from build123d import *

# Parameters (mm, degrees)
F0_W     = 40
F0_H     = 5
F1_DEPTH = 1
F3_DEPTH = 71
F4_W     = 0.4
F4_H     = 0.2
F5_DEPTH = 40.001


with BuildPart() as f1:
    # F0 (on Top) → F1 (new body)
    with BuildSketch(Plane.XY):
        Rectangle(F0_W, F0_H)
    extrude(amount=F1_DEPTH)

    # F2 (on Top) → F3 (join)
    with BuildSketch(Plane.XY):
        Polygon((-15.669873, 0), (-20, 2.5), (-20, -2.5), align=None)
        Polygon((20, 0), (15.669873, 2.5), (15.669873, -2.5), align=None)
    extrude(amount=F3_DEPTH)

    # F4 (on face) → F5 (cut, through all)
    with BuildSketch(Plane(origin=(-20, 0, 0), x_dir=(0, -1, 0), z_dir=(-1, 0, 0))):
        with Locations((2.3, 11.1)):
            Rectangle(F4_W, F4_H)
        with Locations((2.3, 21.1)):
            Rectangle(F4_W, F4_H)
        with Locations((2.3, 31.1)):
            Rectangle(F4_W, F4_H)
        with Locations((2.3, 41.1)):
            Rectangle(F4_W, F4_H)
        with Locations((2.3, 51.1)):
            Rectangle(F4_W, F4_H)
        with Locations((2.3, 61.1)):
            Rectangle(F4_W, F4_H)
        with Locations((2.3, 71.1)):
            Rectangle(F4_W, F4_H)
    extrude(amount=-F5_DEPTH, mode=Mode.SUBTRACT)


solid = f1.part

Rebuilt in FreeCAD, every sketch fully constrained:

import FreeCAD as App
import Part
import Sketcher

V = App.Vector
Q = App.Units.Quantity

doc = App.newDocument("Part")
body = doc.addObject("PartDesign::Body", "Body")

# Sketch on XY plane
sketch1 = body.newObject("Sketcher::SketchObject", "Sketch")
sketch1.AttachmentSupport = (doc.getObject("XY_Plane"), [""])
sketch1.MapMode = "FlatFace"
sketch1.addGeometry([
    Part.LineSegment(V(-20, 2, 0), V(-20, -2, 0)),
    Part.LineSegment(V(-20, -2, 0), V(20, -2, 0)),
    Part.LineSegment(V(20, -2, 0), V(20, 2, 0)),
    Part.LineSegment(V(20, 2, 0), V(-20, 2, 0)),
], False)
sketch1.addConstraint([
    Sketcher.Constraint("Coincident", 0, 2, 1, 1),
    Sketcher.Constraint("Coincident", 1, 2, 2, 1),
    Sketcher.Constraint("Coincident", 2, 2, 3, 1),
    Sketcher.Constraint("Coincident", 3, 2, 0, 1),
    Sketcher.Constraint("Vertical", 0),
    Sketcher.Constraint("Horizontal", 1),
    Sketcher.Constraint("Vertical", 2),
    Sketcher.Constraint("Horizontal", 3),
    Sketcher.Constraint("Symmetric", 0, 2, 2, 2, -1, 1),
    Sketcher.Constraint("DistanceX", 1, 1, 1, 2, Q("40 mm")),
    Sketcher.Constraint("DistanceY", 0, 2, 0, 1, Q("5 mm")),
])
pad1 = body.newObject("PartDesign::Pad", "Pad")
pad1.Profile = sketch1
pad1.Length = 1

# Sketch on XY plane
sketch2 = body.newObject("Sketcher::SketchObject", "Sketch001")
sketch2.AttachmentSupport = (doc.getObject("XY_Plane"), [""])
sketch2.MapMode = "FlatFace"
sketch2.addGeometry([
    Part.LineSegment(V(-15.7, 0, 0), V(-20, 2.5, 0)),  # 0
    Part.LineSegment(V(-20, 2.5, 0), V(-20, -2.5, 0)),  # 1
    Part.LineSegment(V(-20, -2.5, 0), V(-15.7, 0, 0)),  # 2
    Part.LineSegment(V(20, 0, 0), V(15.7, 2.5, 0)),  # 3
    Part.LineSegment(V(15.7, 2.5, 0), V(15.7, -2.5, 0)),  # 4
    Part.LineSegment(V(15.7, -2.5, 0), V(20, 0, 0)),  # 5
], False)
sketch2.addConstraint([
    Sketcher.Constraint("Coincident", 0, 2, 1, 1),
    Sketcher.Constraint("Coincident", 1, 2, 2, 1),
    Sketcher.Constraint("Coincident", 2, 2, 0, 1),
    Sketcher.Constraint("Coincident", 3, 2, 4, 1),
    Sketcher.Constraint("Coincident", 4, 2, 5, 1),
    Sketcher.Constraint("Coincident", 5, 2, 3, 1),
    Sketcher.Constraint("Vertical", 1),
    Sketcher.Constraint("Vertical", 4),
    Sketcher.Constraint("PointOnObject", 2, 2, -1),
    Sketcher.Constraint("PointOnObject", 5, 2, -1),
    Sketcher.Constraint("Parallel", 0, 3),
    Sketcher.Constraint("Parallel", 2, 5),
    Sketcher.Constraint("Horizontal", 0, 2, 3, 2),
    Sketcher.Constraint("Equal", 0, 2),
    Sketcher.Constraint("DistanceY", 1, 2, 1, 1, Q("5 mm")),
    Sketcher.Constraint("Angle", 0, Q("150 deg")),
    Sketcher.Constraint("DistanceX", 0, 2, -1, 1, Q("20 mm")),
    Sketcher.Constraint("DistanceX", -1, 1, 5, 2, Q("20 mm")),
])
pad2 = body.newObject("PartDesign::Pad", "Pad001")
pad2.Profile = sketch2
pad2.Length = 71

# Sketch on YZ plane
sketch3 = body.newObject("Sketcher::SketchObject", "Sketch002")
sketch3.AttachmentSupport = (doc.getObject("YZ_Plane"), [""])
sketch3.MapMode = "FlatFace"
sketch3.AttachmentOffset = App.Placement(V(0, 0, -20), App.Rotation())
sketch3.addGeometry([
    Part.LineSegment(V(-2.1, 11.2, 0), V(-2.1, 11, 0)),  # 0
    Part.LineSegment(V(-2.1, 11, 0), V(-2.5, 11, 0)),  # 1
    Part.LineSegment(V(-2.5, 11, 0), V(-2.5, 11.2, 0)),  # 2
    Part.LineSegment(V(-2.5, 11.2, 0), V(-2.1, 11.2, 0)),  # 3
    Part.LineSegment(V(-2.1, 21.2, 0), V(-2.1, 21, 0)),  # 4
    Part.LineSegment(V(-2.1, 21, 0), V(-2.5, 21, 0)),  # 5
    Part.LineSegment(V(-2.5, 21, 0), V(-2.5, 21.2, 0)),  # 6
    Part.LineSegment(V(-2.5, 21.2, 0), V(-2.1, 21.2, 0)),  # 7
    Part.LineSegment(V(-2.1, 31.2, 0), V(-2.1, 31, 0)),  # 8
    Part.LineSegment(V(-2.1, 31, 0), V(-2.5, 31, 0)),  # 9
    Part.LineSegment(V(-2.5, 31, 0), V(-2.5, 31.2, 0)),  # 10
    Part.LineSegment(V(-2.5, 31.2, 0), V(-2.1, 31.2, 0)),  # 11
    Part.LineSegment(V(-2.1, 41.2, 0), V(-2.1, 41, 0)),  # 12
    Part.LineSegment(V(-2.1, 41, 0), V(-2.5, 41, 0)),  # 13
    Part.LineSegment(V(-2.5, 41, 0), V(-2.5, 41.2, 0)),  # 14
    Part.LineSegment(V(-2.5, 41.2, 0), V(-2.1, 41.2, 0)),  # 15
    Part.LineSegment(V(-2.1, 51.2, 0), V(-2.1, 51, 0)),  # 16
    Part.LineSegment(V(-2.1, 51, 0), V(-2.5, 51, 0)),  # 17
    Part.LineSegment(V(-2.5, 51, 0), V(-2.5, 51.2, 0)),  # 18
    Part.LineSegment(V(-2.5, 51.2, 0), V(-2.1, 51.2, 0)),  # 19
    Part.LineSegment(V(-2.1, 61.2, 0), V(-2.1, 61, 0)),  # 20
    Part.LineSegment(V(-2.1, 61, 0), V(-2.5, 61, 0)),  # 21
    Part.LineSegment(V(-2.5, 61, 0), V(-2.5, 61.2, 0)),  # 22
    Part.LineSegment(V(-2.5, 61.2, 0), V(-2.1, 61.2, 0)),  # 23
    Part.LineSegment(V(-2.1, 71.2, 0), V(-2.1, 71, 0)),  # 24
    Part.LineSegment(V(-2.1, 71, 0), V(-2.5, 71, 0)),  # 25
    Part.LineSegment(V(-2.5, 71, 0), V(-2.5, 71.2, 0)),  # 26
    Part.LineSegment(V(-2.5, 71.2, 0), V(-2.1, 71.2, 0)),  # 27
], False)
sketch3.addConstraint([
    Sketcher.Constraint("Coincident", 0, 2, 1, 1),
    Sketcher.Constraint("Coincident", 1, 2, 2, 1),
    Sketcher.Constraint("Coincident", 2, 2, 3, 1),
    Sketcher.Constraint("Coincident", 3, 2, 0, 1),
    Sketcher.Constraint("Coincident", 4, 2, 5, 1),
    Sketcher.Constraint("Coincident", 5, 2, 6, 1),
    Sketcher.Constraint("Coincident", 6, 2, 7, 1),
    Sketcher.Constraint("Coincident", 7, 2, 4, 1),
    Sketcher.Constraint("Coincident", 8, 2, 9, 1),
    Sketcher.Constraint("Coincident", 9, 2, 10, 1),
    Sketcher.Constraint("Coincident", 10, 2, 11, 1),
    Sketcher.Constraint("Coincident", 11, 2, 8, 1),
    Sketcher.Constraint("Coincident", 12, 2, 13, 1),
    Sketcher.Constraint("Coincident", 13, 2, 14, 1),
    Sketcher.Constraint("Coincident", 14, 2, 15, 1),
    Sketcher.Constraint("Coincident", 15, 2, 12, 1),
    Sketcher.Constraint("Coincident", 16, 2, 17, 1),
    Sketcher.Constraint("Coincident", 17, 2, 18, 1),
    Sketcher.Constraint("Coincident", 18, 2, 19, 1),
    Sketcher.Constraint("Coincident", 19, 2, 16, 1),
    Sketcher.Constraint("Coincident", 20, 2, 21, 1),
    Sketcher.Constraint("Coincident", 21, 2, 22, 1),
    Sketcher.Constraint("Coincident", 22, 2, 23, 1),
    Sketcher.Constraint("Coincident", 23, 2, 20, 1),
    Sketcher.Constraint("Coincident", 24, 2, 25, 1),
    Sketcher.Constraint("Coincident", 25, 2, 26, 1),
    Sketcher.Constraint("Coincident", 26, 2, 27, 1),
    Sketcher.Constraint("Coincident", 27, 2, 24, 1),
    Sketcher.Constraint("Vertical", 0),
    Sketcher.Constraint("Horizontal", 1),
    Sketcher.Constraint("Vertical", 2),
    Sketcher.Constraint("Horizontal", 3),
    Sketcher.Constraint("Vertical", 4),
    Sketcher.Constraint("Horizontal", 5),
    Sketcher.Constraint("Vertical", 6),
    Sketcher.Constraint("Horizontal", 7),
    Sketcher.Constraint("Vertical", 8),
    Sketcher.Constraint("Horizontal", 9),
    Sketcher.Constraint("Vertical", 10),
    Sketcher.Constraint("Horizontal", 11),
    Sketcher.Constraint("Vertical", 12),
    Sketcher.Constraint("Horizontal", 13),
    Sketcher.Constraint("Vertical", 14),
    Sketcher.Constraint("Horizontal", 15),
    Sketcher.Constraint("Vertical", 16),
    Sketcher.Constraint("Horizontal", 17),
    Sketcher.Constraint("Vertical", 18),
    Sketcher.Constraint("Horizontal", 19),
    Sketcher.Constraint("Vertical", 20),
    Sketcher.Constraint("Horizontal", 21),
    Sketcher.Constraint("Vertical", 22),
    Sketcher.Constraint("Horizontal", 23),
    Sketcher.Constraint("Vertical", 24),
    Sketcher.Constraint("Horizontal", 25),
    Sketcher.Constraint("Vertical", 26),
    Sketcher.Constraint("Horizontal", 27),
    Sketcher.Constraint("Vertical", 3, 2, 4, 2),
    Sketcher.Constraint("Vertical", 2, 2, 5, 2),
    Sketcher.Constraint("Vertical", 7, 2, 8, 2),
    Sketcher.Constraint("Vertical", 6, 2, 9, 2),
    Sketcher.Constraint("Vertical", 11, 2, 12, 2),
    Sketcher.Constraint("Vertical", 10, 2, 13, 2),
    Sketcher.Constraint("Vertical", 15, 2, 16, 2),
    Sketcher.Constraint("Vertical", 14, 2, 17, 2),
    Sketcher.Constraint("Vertical", 19, 2, 20, 2),
    Sketcher.Constraint("Vertical", 18, 2, 21, 2),
    Sketcher.Constraint("Vertical", 23, 2, 24, 2),
    Sketcher.Constraint("Vertical", 22, 2, 25, 2),
    Sketcher.Constraint("Equal", 2, 4),
    Sketcher.Constraint("Equal", 6, 8),
    Sketcher.Constraint("Equal", 10, 12),
    Sketcher.Constraint("Equal", 14, 16),
    Sketcher.Constraint("Equal", 18, 20),
    Sketcher.Constraint("Equal", 22, 24),
    Sketcher.Constraint("DistanceX", 1, 2, 1, 1, Q("0.4 mm")),
    Sketcher.Constraint("DistanceY", 0, 2, 0, 1, Q("0.2 mm")),
    Sketcher.Constraint("DistanceY", -1, 1, 0, 2, Q("11 mm")),
    Sketcher.Constraint("DistanceY", -1, 1, 4, 2, Q("21 mm")),
    Sketcher.Constraint("DistanceY", -1, 1, 8, 2, Q("31 mm")),
    Sketcher.Constraint("DistanceY", -1, 1, 12, 2, Q("41 mm")),
    Sketcher.Constraint("DistanceY", -1, 1, 16, 2, Q("51 mm")),
    Sketcher.Constraint("DistanceY", -1, 1, 20, 2, Q("61 mm")),
    Sketcher.Constraint("DistanceY", -1, 1, 24, 2, Q("71 mm")),
    Sketcher.Constraint("DistanceX", 0, 2, -1, 1, Q("2.1 mm")),
])
pocket1 = body.newObject("PartDesign::Pocket", "Pocket")
pocket1.Profile = sketch3
pocket1.Type = "ThroughAll"
pocket1.Reversed = True

doc.recompute()
